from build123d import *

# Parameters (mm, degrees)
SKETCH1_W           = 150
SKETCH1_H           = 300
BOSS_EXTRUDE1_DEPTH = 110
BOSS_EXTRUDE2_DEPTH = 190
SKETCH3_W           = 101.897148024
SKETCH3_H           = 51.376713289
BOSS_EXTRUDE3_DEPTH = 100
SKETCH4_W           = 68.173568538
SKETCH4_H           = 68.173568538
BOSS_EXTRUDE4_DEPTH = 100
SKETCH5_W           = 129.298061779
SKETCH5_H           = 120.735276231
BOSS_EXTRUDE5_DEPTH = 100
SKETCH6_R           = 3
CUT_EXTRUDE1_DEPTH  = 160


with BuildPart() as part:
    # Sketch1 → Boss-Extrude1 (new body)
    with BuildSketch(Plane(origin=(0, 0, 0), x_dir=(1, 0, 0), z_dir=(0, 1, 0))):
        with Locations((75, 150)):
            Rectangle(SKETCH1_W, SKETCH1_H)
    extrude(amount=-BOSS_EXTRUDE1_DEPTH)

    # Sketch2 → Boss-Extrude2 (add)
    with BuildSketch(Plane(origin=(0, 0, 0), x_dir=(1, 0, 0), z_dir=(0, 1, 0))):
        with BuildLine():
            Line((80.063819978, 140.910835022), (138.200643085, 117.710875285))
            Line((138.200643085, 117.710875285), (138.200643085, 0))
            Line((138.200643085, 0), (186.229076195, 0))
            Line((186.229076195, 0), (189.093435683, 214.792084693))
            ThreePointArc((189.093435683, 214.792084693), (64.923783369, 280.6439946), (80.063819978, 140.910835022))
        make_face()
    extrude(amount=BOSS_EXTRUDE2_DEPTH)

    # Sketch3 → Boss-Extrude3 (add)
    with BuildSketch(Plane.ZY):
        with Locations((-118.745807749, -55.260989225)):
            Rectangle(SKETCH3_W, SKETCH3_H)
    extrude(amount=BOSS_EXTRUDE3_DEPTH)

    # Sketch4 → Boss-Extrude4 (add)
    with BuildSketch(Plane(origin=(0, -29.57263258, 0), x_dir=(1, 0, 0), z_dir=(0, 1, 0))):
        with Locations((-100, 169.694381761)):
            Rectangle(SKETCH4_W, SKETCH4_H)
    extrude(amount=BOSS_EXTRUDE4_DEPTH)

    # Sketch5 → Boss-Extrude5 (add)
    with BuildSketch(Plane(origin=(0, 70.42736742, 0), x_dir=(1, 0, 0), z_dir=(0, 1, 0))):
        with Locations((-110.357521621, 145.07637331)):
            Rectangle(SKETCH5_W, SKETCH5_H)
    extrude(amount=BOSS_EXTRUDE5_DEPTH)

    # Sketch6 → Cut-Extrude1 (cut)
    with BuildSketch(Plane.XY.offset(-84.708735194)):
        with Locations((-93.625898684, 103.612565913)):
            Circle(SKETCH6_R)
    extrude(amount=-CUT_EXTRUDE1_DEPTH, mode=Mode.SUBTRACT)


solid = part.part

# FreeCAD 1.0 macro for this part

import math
import FreeCAD as App
import Part
import Sketcher

doc = App.newDocument("Part")
params = doc.addObject("Spreadsheet::Sheet", "Params")
for row, (alias, value) in enumerate([
    ("sketch1_width", "150 mm"),
    ("sketch1_height", "300 mm"),
    ("pad1_length", "110 mm"),
    ("pad2_length", "190 mm"),
    ("pad3_length", "100 mm"),
    ("pad4_length", "100 mm"),
    ("pad5_length", "100 mm"),
    ("sketch6_diameter", "6 mm"),
    ("pocket1_length", "160 mm"),
], start=1):
    params.set(f"A{row}", alias)
    params.set(f"B{row}", "=" + value)
    params.setAlias(f"B{row}", alias)

body = doc.addObject("PartDesign::Body", "Body")

sketch1 = body.newObject("Sketcher::SketchObject", "Sketch")
sketch1.AttachmentSupport = (doc.getObject("XZ_Plane"), [""])
sketch1.MapMode = "FlatFace"
sketch1.addGeometry(Part.LineSegment(App.Vector(0, -300, 0), App.Vector(0, 0, 0)), False)
sketch1.addGeometry(Part.LineSegment(App.Vector(0, 0, 0), App.Vector(150, 0, 0)), False)
sketch1.addGeometry(Part.LineSegment(App.Vector(150, 0, 0), App.Vector(150, -300, 0)), False)
sketch1.addGeometry(Part.LineSegment(App.Vector(150, -300, 0), App.Vector(0, -300, 0)), False)
sketch1.addConstraint(Sketcher.Constraint("Coincident", 0, 2, 1, 1))
sketch1.addConstraint(Sketcher.Constraint("Coincident", 1, 2, 2, 1))
sketch1.addConstraint(Sketcher.Constraint("Coincident", 2, 2, 3, 1))
sketch1.addConstraint(Sketcher.Constraint("Coincident", 3, 2, 0, 1))
sketch1.addConstraint(Sketcher.Constraint("Vertical", 0))
sketch1.addConstraint(Sketcher.Constraint("Horizontal", 1))
sketch1.addConstraint(Sketcher.Constraint("Vertical", 2))
sketch1.addConstraint(Sketcher.Constraint("Horizontal", 3))
sketch1.addConstraint(Sketcher.Constraint("Coincident", 0, 2, -1, 1))
sketch1.addConstraint(Sketcher.Constraint("DistanceX", 1, 1, 1, 2, 150.0))
sketch1.addConstraint(Sketcher.Constraint("DistanceY", 0, 1, 0, 2, 300.0))
sketch1.setExpression("Constraints[9]", "Params.sketch1_width")
sketch1.setExpression("Constraints[10]", "Params.sketch1_height")
pad1 = body.newObject("PartDesign::Pad", "Pad")
pad1.Profile = sketch1
pad1.setExpression("Length", "Params.pad1_length")

sketch2 = body.newObject("Sketcher::SketchObject", "Sketch001")
sketch2.AttachmentSupport = (doc.getObject("XZ_Plane"), [""])
sketch2.MapMode = "FlatFace"
sketch2.addGeometry(Part.LineSegment(App.Vector(80, -141, 0), App.Vector(138, -118, 0)), False)
sketch2.addGeometry(Part.LineSegment(App.Vector(138, -118, 0), App.Vector(138, 0, 0)), False)
sketch2.addGeometry(Part.LineSegment(App.Vector(138, 0, 0), App.Vector(186, 0, 0)), False)
sketch2.addGeometry(Part.LineSegment(App.Vector(186, 0, 0), App.Vector(189, -215, 0)), False)
sketch2.addGeometry(Part.ArcOfCircle(Part.Circle(App.Vector(110, -215, 0), App.Vector(0, 0, 1), 80), math.radians(112), math.radians(360)), False)
sketch2.addConstraint(Sketcher.Constraint("Coincident", 0, 2, 1, 1))
sketch2.addConstraint(Sketcher.Constraint("Coincident", 1, 2, 2, 1))
sketch2.addConstraint(Sketcher.Constraint("Coincident", 2, 2, 3, 1))
sketch2.addConstraint(Sketcher.Constraint("Coincident", 3, 2, 4, 2))
sketch2.addConstraint(Sketcher.Constraint("Tangent", 4, 1, 0, 1))
sketch2.addConstraint(Sketcher.Constraint("Vertical", 1))
sketch2.addConstraint(Sketcher.Constraint("Horizontal", 2))
sketch2.addConstraint(Sketcher.Constraint("PointOnObject", 1, 2, -1))
sketch2.addConstraint(Sketcher.Constraint("Horizontal", 4, 3, 3, 2))
sketch2.addConstraint(Sketcher.Constraint("Radius", 4, 79.546718))
sketch2.addConstraint(Sketcher.Constraint("DistanceX", 2, 1, 2, 2, 48.028433))
sketch2.addConstraint(Sketcher.Constraint("DistanceY", 1, 1, 1, 2, 117.710875))
sketch2.addConstraint(Sketcher.Constraint("DistanceX", -1, 1, 4, 1, 80.06382))
sketch2.addConstraint(Sketcher.Constraint("DistanceY", 4, 3, 0, 2, 97.081209))
sketch2.addConstraint(Sketcher.Constraint("DistanceX", 4, 3, 2, 2, 76.682358))
pad2 = body.newObject("PartDesign::Pad", "Pad001")
pad2.Profile = sketch2
pad2.setExpression("Length", "Params.pad2_length")
pad2.Reversed = True

sketch3 = body.newObject("Sketcher::SketchObject", "Sketch002")
sketch3.AttachmentSupport = (doc.getObject("YZ_Plane"), [""])
sketch3.MapMode = "FlatFace"
sketch3.addGeometry(Part.LineSegment(App.Vector(-30, -170, 0), App.Vector(-81, -170, 0)), False)
sketch3.addGeometry(Part.LineSegment(App.Vector(-81, -170, 0), App.Vector(-81, -68, 0)), False)
sketch3.addGeometry(Part.LineSegment(App.Vector(-81, -68, 0), App.Vector(-30, -68, 0)), False)
sketch3.addGeometry(Part.LineSegment(App.Vector(-30, -68, 0), App.Vector(-30, -170, 0)), False)
sketch3.addConstraint(Sketcher.Constraint("Coincident", 0, 2, 1, 1))
sketch3.addConstraint(Sketcher.Constraint("Coincident", 1, 2, 2, 1))
sketch3.addConstraint(Sketcher.Constraint("Coincident", 2, 2, 3, 1))
sketch3.addConstraint(Sketcher.Constraint("Coincident", 3, 2, 0, 1))
sketch3.addConstraint(Sketcher.Constraint("Horizontal", 0))
sketch3.addConstraint(Sketcher.Constraint("Vertical", 1))
sketch3.addConstraint(Sketcher.Constraint("Horizontal", 2))
sketch3.addConstraint(Sketcher.Constraint("Vertical", 3))
sketch3.addConstraint(Sketcher.Constraint("DistanceY", 1, 1, 1, 2, 101.897148))
sketch3.addConstraint(Sketcher.Constraint("DistanceX", 0, 2, 0, 1, 51.376713))
sketch3.addConstraint(Sketcher.Constraint("DistanceY", 0, 2, -1, 1, 169.694382))
sketch3.addConstraint(Sketcher.Constraint("DistanceX", 0, 2, -1, 1, 80.949346))
pad3 = body.newObject("PartDesign::Pad", "Pad002")
pad3.Profile = sketch3
pad3.setExpression("Length", "Params.pad3_length")
pad3.Reversed = True

sketch4 = body.newObject("Sketcher::SketchObject", "Sketch003")
sketch4.AttachmentSupport = (doc.getObject("XZ_Plane"), [""])
sketch4.MapMode = "FlatFace"
sketch4.AttachmentOffset = App.Placement(App.Vector(0, 0, 29.572633), App.Rotation())
sketch4.addGeometry(Part.LineSegment(App.Vector(-134, -204, 0), App.Vector(-134, -136, 0)), False)
sketch4.addGeometry(Part.LineSegment(App.Vector(-134, -136, 0), App.Vector(-66, -136, 0)), False)
sketch4.addGeometry(Part.LineSegment(App.Vector(-66, -136, 0), App.Vector(-66, -204, 0)), False)
sketch4.addGeometry(Part.LineSegment(App.Vector(-66, -204, 0), App.Vector(-134, -204, 0)), False)
sketch4.addConstraint(Sketcher.Constraint("Coincident", 0, 2, 1, 1))
sketch4.addConstraint(Sketcher.Constraint("Coincident", 1, 2, 2, 1))
sketch4.addConstraint(Sketcher.Constraint("Coincident", 2, 2, 3, 1))
sketch4.addConstraint(Sketcher.Constraint("Coincident", 3, 2, 0, 1))
sketch4.addConstraint(Sketcher.Constraint("Vertical", 0))
sketch4.addConstraint(Sketcher.Constraint("Horizontal", 1))
sketch4.addConstraint(Sketcher.Constraint("Vertical", 2))
sketch4.addConstraint(Sketcher.Constraint("Horizontal", 3))
sketch4.addConstraint(Sketcher.Constraint("Equal", 3, 0))
sketch4.addConstraint(Sketcher.Constraint("DistanceX", 1, 1, 1, 2, 68.173569))
sketch4.addConstraint(Sketcher.Constraint("DistanceX", 0, 2, -1, 1, 134.086784))
sketch4.addConstraint(Sketcher.Constraint("DistanceY", 0, 2, -1, 1, 135.607597))
pad4 = body.newObject("PartDesign::Pad", "Pad003")
pad4.Profile = sketch4
pad4.setExpression("Length", "Params.pad4_length")
pad4.Reversed = True

sketch5 = body.newObject("Sketcher::SketchObject", "Sketch004")
sketch5.AttachmentSupport = (doc.getObject("XZ_Plane"), [""])
sketch5.MapMode = "FlatFace"
sketch5.AttachmentOffset = App.Placement(App.Vector(0, 0, -70.427367), App.Rotation())
sketch5.addGeometry(Part.LineSegment(App.Vector(-175, -205, 0), App.Vector(-175, -85, 0)), False)
sketch5.addGeometry(Part.LineSegment(App.Vector(-175, -85, 0), App.Vector(-46, -85, 0)), False)
sketch5.addGeometry(Part.LineSegment(App.Vector(-46, -85, 0), App.Vector(-46, -205, 0)), False)
sketch5.addGeometry(Part.LineSegment(App.Vector(-46, -205, 0), App.Vector(-175, -205, 0)), False)
sketch5.addConstraint(Sketcher.Constraint("Coincident", 0, 2, 1, 1))
sketch5.addConstraint(Sketcher.Constraint("Coincident", 1, 2, 2, 1))
sketch5.addConstraint(Sketcher.Constraint("Coincident", 2, 2, 3, 1))
sketch5.addConstraint(Sketcher.Constraint("Coincident", 3, 2, 0, 1))
sketch5.addConstraint(Sketcher.Constraint("Vertical", 0))
sketch5.addConstraint(Sketcher.Constraint("Horizontal", 1))
sketch5.addConstraint(Sketcher.Constraint("Vertical", 2))
sketch5.addConstraint(Sketcher.Constraint("Horizontal", 3))
sketch5.addConstraint(Sketcher.Constraint("DistanceX", 1, 1, 1, 2, 129.298062))
sketch5.addConstraint(Sketcher.Constraint("DistanceY", 0, 1, 0, 2, 120.735276))
sketch5.addConstraint(Sketcher.Constraint("DistanceX", 1, 2, -1, 1, 45.708491))
sketch5.addConstraint(Sketcher.Constraint("DistanceY", 2, 2, -1, 1, 205.444011))
pad5 = body.newObject("PartDesign::Pad", "Pad004")
pad5.Profile = sketch5
pad5.setExpression("Length", "Params.pad5_length")
pad5.Reversed = True

sketch6 = body.newObject("Sketcher::SketchObject", "Sketch005")
sketch6.AttachmentSupport = (doc.getObject("XY_Plane"), [""])
sketch6.MapMode = "FlatFace"
sketch6.AttachmentOffset = App.Placement(App.Vector(0, 0, -84.708735), App.Rotation())
sketch6.addGeometry(Part.Circle(App.Vector(-93.6, 103.6, 0), App.Vector(0, 0, 1), 3), False)
sketch6.addConstraint(Sketcher.Constraint("Diameter", 0, 6.0))
sketch6.addConstraint(Sketcher.Constraint("DistanceX", 0, 3, -1, 1, 93.625899))
sketch6.addConstraint(Sketcher.Constraint("DistanceY", -1, 1, 0, 3, 103.612566))
sketch6.setExpression("Constraints[0]", "Params.sketch6_diameter")
pocket1 = body.newObject("PartDesign::Pocket", "Pocket")
pocket1.Profile = sketch6
pocket1.setExpression("Length", "Params.pocket1_length")

doc.recompute()
